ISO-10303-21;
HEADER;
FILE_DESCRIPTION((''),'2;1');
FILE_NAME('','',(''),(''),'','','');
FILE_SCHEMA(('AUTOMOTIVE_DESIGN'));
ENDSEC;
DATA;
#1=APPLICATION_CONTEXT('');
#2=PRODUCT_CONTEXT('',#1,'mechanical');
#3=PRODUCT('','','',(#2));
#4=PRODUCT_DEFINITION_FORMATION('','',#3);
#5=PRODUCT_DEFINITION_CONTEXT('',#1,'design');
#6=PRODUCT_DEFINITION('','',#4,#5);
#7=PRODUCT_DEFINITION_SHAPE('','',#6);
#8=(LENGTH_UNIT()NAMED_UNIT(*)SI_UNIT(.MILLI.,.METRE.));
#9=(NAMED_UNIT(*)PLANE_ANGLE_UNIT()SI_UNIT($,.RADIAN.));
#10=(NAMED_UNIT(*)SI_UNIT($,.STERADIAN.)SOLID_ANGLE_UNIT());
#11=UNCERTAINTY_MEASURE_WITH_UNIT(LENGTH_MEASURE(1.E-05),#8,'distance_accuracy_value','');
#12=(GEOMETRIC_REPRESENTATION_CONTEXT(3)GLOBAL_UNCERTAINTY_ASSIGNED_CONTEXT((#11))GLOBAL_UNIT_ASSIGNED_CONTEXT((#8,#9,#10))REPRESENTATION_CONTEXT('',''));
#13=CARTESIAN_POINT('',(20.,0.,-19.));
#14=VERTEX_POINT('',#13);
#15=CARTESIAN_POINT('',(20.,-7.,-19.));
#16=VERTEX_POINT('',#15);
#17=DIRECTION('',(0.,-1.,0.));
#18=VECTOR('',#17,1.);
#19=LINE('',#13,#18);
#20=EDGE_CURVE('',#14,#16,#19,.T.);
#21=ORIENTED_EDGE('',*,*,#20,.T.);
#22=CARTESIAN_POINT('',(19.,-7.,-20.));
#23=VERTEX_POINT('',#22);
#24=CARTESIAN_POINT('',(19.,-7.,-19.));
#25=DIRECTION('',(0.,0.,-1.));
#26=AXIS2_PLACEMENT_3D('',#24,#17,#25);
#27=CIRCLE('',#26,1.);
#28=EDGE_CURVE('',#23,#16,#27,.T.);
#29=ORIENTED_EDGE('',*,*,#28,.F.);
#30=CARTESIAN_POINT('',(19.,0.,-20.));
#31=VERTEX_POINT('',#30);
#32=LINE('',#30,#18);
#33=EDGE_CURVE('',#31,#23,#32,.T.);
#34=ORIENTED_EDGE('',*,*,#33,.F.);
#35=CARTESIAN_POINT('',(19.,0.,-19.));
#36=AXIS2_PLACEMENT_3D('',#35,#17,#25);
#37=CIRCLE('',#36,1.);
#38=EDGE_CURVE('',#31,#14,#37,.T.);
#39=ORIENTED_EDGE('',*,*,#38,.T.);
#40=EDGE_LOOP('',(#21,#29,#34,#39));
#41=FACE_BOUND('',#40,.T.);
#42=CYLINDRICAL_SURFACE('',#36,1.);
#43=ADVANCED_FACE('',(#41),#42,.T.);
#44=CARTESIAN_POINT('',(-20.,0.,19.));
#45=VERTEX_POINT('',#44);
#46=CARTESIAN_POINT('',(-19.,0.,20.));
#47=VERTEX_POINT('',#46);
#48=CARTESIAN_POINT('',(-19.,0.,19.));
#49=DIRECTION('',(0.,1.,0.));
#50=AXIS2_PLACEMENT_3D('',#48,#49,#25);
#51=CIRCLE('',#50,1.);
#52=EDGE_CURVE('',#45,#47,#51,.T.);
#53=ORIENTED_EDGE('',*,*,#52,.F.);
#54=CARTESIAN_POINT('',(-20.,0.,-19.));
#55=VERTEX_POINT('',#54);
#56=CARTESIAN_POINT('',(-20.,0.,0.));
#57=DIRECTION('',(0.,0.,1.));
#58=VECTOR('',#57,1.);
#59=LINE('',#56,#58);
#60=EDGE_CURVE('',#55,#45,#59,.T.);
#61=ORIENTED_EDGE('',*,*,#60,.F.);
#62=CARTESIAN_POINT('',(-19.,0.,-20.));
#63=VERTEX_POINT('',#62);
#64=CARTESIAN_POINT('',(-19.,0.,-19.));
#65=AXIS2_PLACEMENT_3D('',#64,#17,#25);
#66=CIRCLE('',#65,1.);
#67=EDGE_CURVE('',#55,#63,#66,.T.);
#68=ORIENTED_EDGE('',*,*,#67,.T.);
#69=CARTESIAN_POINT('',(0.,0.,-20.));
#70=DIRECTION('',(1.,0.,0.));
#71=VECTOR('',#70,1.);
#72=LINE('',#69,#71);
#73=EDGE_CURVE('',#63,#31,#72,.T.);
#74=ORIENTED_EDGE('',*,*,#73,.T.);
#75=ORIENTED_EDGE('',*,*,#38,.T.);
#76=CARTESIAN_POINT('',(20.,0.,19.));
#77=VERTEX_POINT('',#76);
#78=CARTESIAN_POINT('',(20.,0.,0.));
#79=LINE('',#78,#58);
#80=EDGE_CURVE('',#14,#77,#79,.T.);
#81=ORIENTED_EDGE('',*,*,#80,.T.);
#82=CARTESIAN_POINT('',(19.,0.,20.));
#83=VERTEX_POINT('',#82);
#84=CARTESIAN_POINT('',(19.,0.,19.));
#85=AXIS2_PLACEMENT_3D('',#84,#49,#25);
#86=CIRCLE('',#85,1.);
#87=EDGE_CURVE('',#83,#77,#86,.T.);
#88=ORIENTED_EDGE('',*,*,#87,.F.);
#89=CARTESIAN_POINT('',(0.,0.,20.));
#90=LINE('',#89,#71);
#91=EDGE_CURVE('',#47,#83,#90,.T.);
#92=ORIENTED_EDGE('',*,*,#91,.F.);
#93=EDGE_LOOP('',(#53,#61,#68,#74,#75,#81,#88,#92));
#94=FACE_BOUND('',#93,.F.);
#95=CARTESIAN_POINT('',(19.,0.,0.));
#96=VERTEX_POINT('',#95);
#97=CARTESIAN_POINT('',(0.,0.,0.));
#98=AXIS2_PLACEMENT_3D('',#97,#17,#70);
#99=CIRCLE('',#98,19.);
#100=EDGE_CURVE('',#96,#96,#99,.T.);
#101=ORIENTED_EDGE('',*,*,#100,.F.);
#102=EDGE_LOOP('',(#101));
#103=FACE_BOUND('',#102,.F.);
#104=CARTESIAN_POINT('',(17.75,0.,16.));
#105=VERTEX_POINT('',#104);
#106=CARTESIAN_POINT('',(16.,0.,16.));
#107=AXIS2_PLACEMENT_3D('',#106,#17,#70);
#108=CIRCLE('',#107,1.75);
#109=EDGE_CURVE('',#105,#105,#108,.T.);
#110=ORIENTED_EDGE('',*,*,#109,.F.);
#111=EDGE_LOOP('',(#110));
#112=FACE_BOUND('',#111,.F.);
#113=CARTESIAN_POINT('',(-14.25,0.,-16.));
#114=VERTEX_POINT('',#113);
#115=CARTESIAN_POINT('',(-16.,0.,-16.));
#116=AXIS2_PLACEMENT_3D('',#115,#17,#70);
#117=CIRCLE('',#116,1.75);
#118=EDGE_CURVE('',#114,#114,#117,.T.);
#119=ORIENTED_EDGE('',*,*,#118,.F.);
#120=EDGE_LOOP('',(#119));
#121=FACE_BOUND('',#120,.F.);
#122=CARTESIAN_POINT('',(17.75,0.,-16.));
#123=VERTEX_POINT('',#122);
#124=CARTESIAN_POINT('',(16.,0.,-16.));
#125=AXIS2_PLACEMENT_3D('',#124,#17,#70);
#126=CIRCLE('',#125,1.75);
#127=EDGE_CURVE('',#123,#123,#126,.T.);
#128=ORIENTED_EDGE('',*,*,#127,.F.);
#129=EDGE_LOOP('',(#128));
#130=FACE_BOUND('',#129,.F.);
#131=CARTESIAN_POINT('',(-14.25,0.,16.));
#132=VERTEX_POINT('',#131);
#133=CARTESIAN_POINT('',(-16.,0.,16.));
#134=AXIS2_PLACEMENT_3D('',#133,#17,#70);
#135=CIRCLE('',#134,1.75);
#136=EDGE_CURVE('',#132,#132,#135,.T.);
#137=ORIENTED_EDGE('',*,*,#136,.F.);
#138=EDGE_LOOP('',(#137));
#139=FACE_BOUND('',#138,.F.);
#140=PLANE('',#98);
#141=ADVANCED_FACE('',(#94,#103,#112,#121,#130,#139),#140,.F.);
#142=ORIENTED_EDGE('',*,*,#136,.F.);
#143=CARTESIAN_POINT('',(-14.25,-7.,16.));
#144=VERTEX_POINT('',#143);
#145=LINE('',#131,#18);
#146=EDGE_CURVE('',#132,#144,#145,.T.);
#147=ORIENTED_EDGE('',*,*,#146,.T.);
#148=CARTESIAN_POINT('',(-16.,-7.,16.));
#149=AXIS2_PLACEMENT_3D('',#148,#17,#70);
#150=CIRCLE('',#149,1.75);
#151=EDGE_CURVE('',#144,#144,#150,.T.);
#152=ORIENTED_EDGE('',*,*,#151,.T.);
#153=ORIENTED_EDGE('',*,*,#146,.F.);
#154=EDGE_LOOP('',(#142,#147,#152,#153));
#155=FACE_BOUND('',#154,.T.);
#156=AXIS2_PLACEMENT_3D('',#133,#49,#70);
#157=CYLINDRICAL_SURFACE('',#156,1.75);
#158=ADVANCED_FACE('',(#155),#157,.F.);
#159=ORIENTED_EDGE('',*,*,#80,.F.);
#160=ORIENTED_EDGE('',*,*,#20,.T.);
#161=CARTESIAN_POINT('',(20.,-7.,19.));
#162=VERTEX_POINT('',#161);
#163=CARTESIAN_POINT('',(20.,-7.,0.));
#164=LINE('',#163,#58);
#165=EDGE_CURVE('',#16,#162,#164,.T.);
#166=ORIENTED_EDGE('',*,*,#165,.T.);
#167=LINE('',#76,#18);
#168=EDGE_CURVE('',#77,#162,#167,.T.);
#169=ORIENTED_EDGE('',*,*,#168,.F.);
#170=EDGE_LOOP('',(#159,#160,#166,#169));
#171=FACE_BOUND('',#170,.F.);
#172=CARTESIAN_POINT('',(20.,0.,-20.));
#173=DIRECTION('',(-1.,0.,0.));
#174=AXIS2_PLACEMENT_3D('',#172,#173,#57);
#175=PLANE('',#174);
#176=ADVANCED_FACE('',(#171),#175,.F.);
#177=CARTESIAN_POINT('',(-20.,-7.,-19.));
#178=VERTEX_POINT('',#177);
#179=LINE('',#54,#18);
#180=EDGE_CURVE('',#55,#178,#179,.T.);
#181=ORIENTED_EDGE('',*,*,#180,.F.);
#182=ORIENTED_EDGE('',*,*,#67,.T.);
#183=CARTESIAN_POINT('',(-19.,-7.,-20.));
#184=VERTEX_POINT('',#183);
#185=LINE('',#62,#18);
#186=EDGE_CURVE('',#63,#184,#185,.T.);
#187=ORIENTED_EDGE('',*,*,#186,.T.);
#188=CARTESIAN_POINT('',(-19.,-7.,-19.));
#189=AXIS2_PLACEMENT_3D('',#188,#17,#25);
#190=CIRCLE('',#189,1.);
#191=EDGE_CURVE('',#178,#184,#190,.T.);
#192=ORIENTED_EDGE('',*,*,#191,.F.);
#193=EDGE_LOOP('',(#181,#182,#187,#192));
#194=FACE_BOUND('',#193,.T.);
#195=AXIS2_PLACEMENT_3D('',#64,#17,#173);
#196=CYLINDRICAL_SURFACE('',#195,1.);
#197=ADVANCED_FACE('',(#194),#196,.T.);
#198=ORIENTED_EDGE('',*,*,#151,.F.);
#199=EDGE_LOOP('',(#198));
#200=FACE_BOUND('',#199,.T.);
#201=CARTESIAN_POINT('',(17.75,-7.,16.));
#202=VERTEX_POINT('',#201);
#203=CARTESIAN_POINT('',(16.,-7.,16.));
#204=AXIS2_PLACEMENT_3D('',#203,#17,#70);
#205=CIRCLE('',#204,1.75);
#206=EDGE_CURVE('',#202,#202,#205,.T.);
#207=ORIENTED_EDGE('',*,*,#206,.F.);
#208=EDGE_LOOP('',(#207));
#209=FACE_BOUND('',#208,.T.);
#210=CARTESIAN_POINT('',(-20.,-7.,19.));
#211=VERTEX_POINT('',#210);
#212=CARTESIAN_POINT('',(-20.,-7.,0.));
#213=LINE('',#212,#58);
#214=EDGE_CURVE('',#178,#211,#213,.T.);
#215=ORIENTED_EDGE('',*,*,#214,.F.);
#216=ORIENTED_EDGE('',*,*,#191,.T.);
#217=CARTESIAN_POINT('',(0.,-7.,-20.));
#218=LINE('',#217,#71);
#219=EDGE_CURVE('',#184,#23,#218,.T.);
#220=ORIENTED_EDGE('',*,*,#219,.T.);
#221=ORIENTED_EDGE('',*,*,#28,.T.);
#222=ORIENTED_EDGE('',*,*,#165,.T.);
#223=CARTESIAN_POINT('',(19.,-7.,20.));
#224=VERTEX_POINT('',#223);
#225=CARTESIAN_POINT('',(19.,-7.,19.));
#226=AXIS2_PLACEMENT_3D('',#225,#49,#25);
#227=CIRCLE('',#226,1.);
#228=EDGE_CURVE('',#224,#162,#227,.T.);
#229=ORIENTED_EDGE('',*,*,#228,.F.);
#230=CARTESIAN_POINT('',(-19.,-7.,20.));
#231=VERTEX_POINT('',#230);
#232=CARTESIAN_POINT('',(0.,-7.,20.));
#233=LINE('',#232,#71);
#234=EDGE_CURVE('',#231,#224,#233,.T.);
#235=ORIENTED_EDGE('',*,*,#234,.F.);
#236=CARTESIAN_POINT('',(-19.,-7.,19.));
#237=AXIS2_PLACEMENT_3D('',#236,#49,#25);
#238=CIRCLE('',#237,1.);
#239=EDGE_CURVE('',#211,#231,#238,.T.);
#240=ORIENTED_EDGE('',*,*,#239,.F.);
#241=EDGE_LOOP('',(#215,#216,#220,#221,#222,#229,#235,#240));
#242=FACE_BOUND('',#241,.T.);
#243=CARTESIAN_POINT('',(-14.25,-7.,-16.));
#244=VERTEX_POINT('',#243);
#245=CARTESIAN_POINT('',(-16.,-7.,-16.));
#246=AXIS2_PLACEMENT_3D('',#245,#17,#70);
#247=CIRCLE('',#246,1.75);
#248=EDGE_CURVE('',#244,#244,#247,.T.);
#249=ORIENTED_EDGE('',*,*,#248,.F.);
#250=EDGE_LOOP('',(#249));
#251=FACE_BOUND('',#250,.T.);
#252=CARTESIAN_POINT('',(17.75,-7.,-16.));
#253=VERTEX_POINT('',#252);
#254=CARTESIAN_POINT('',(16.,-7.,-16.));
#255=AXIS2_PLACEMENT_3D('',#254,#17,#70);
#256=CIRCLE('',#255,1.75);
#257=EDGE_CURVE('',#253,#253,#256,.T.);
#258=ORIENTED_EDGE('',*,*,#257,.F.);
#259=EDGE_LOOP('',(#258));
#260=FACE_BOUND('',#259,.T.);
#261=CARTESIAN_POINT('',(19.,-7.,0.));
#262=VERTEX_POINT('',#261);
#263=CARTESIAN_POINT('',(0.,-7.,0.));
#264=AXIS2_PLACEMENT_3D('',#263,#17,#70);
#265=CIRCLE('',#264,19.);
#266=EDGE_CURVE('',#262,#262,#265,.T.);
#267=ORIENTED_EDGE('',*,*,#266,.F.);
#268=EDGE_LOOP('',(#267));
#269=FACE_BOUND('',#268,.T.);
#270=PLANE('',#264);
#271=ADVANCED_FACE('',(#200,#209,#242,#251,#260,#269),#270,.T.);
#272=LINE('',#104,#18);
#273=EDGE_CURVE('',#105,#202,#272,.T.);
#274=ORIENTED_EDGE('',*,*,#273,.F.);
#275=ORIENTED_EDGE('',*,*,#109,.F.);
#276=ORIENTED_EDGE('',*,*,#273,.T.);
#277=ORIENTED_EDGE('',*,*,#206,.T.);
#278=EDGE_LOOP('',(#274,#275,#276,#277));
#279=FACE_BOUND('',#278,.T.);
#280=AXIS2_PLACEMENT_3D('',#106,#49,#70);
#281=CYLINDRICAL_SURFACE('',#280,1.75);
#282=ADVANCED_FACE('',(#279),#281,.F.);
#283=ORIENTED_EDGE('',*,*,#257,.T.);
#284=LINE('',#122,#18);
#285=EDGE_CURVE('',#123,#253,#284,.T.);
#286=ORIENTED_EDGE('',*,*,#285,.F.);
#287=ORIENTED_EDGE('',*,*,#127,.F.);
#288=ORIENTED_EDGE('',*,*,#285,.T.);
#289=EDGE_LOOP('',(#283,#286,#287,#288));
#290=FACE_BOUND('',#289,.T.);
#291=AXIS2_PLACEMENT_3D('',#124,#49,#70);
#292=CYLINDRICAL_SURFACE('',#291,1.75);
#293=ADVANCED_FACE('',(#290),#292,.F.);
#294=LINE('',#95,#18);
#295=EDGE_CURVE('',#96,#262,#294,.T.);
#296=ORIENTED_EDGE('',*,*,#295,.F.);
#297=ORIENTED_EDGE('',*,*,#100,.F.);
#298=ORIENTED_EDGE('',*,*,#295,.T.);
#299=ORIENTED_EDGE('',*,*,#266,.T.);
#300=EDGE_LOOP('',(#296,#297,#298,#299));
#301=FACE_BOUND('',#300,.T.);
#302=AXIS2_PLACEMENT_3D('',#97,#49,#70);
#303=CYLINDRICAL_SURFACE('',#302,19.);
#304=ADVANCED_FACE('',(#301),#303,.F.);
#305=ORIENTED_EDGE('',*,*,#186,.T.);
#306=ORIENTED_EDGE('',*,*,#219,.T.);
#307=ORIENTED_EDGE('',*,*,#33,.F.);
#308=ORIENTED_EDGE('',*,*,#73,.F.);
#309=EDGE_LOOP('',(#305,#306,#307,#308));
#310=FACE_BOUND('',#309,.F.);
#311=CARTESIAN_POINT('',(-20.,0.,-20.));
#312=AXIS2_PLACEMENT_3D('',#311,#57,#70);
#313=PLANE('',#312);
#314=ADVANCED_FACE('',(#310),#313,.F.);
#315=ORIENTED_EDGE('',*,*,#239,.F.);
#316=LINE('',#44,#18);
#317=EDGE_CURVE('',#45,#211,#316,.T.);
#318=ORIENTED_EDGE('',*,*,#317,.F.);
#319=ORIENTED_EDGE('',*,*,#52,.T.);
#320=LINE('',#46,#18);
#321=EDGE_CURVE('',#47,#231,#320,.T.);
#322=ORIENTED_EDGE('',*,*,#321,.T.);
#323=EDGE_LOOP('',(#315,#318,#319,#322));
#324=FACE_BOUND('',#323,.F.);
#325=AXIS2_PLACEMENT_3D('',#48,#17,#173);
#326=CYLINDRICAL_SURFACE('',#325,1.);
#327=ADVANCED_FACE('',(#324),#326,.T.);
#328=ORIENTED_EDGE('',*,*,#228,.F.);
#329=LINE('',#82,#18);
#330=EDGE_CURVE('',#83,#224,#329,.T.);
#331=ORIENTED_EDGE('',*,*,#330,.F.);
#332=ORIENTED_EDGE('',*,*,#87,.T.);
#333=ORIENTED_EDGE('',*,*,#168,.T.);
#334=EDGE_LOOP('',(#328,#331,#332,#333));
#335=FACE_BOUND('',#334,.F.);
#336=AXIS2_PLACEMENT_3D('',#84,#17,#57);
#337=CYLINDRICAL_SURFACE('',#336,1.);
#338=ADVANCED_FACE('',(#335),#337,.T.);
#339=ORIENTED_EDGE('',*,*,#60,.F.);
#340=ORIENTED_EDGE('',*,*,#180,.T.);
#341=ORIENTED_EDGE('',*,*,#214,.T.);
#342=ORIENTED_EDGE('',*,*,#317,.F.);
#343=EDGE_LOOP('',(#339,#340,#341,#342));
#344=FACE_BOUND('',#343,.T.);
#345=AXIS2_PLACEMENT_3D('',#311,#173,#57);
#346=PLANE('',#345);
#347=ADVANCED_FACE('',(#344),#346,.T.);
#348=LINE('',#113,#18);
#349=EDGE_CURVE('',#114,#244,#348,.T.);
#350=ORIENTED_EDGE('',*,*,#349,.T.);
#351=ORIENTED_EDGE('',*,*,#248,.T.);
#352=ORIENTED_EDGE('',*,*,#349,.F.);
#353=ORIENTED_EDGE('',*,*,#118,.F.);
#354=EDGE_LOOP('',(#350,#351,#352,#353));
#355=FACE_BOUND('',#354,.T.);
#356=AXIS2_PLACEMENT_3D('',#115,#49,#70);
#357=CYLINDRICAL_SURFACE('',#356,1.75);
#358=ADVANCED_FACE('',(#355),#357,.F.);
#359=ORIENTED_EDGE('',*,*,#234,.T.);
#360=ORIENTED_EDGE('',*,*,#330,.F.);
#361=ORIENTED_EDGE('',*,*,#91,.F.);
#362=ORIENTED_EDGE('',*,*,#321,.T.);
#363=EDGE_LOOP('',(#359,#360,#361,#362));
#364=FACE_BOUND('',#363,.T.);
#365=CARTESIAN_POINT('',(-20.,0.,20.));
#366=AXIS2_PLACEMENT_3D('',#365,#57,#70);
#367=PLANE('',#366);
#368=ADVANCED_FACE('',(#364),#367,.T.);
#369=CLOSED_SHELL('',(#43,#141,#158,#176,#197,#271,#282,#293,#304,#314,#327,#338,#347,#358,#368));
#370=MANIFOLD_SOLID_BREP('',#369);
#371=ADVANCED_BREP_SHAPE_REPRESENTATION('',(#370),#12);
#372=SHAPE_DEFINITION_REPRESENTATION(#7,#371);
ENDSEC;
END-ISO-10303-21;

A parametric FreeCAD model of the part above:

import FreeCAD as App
import Part
import Sketcher
from FreeCAD import Vector
Q = App.Units.Quantity


def edges_at(feature, points):
    """Names of the edges that pass closest to the given points."""
    edges = feature.Shape.Edges
    near = lambda p: min(range(len(edges)), key=lambda i: edges[i].distToShape(Part.Vertex(*p))[0])
    return sorted({f"Edge{near(p) + 1}" for p in points})


def add_polygon(sketch, points):
    """Adds a closed chain of lines whose ends are joined by coincident constraints."""
    first, n = sketch.GeometryCount, len(points)
    for a, b in zip(points, points[1:] + points[:1]):
        sketch.addGeometry(Part.LineSegment(App.Vector(*a, 0), App.Vector(*b, 0)), False)
    for i in range(n):
        sketch.addConstraint(Sketcher.Constraint("Coincident", first + i, 2, first + (i + 1) % n, 1))

doc = App.newDocument("Part")
body = doc.addObject("PartDesign::Body", "Body")

# Sketch on XZ plane
sketch1 = body.newObject("Sketcher::SketchObject", "Sketch")
sketch1.AttachmentSupport = (doc.getObject("XZ_Plane"), [""])
sketch1.MapMode = "FlatFace"
add_polygon(sketch1, [(-20, 20), (-20, -20), (20, -20), (20, 20)])  # lines 0-3
sketch1.addGeometry(Part.Circle(Vector(-16, -16, 0), Vector(0, 0, 1), 1.8), False)  # 4
sketch1.addGeometry(Part.Circle(Vector(16, -16, 0), Vector(0, 0, 1), 1.8), False)  # 5
sketch1.addGeometry(Part.Circle(Vector(-16, 16, 0), Vector(0, 0, 1), 1.8), False)  # 6
sketch1.addGeometry(Part.Circle(Vector(0, 0, 0), Vector(0, 0, 1), 19), False)  # 7
sketch1.addGeometry(Part.Circle(Vector(16, 16, 0), Vector(0, 0, 1), 1.8), False)  # 8
sketch1.addConstraint(Sketcher.Constraint("Vertical", 0))
sketch1.addConstraint(Sketcher.Constraint("Horizontal", 1))
sketch1.addConstraint(Sketcher.Constraint("Vertical", 2))
sketch1.addConstraint(Sketcher.Constraint("Horizontal", 3))
sketch1.addConstraint(Sketcher.Constraint("Coincident", 7, 3, -1, 1))
sketch1.addConstraint(Sketcher.Constraint("Equal", 4, 5))
sketch1.addConstraint(Sketcher.Constraint("Equal", 5, 6))
sketch1.addConstraint(Sketcher.Constraint("Equal", 6, 8))
sketch1.addConstraint(Sketcher.Constraint("Symmetric", 5, 3, 6, 3, -1, 1))
sketch1.addConstraint(Sketcher.Constraint("Symmetric", 4, 3, 8, 3, -1, 1))
sketch1.addConstraint(Sketcher.Constraint("Symmetric", 0, 2, 2, 2, -1, 1))
sketch1.addConstraint(Sketcher.Constraint("Symmetric", 4, 3, 5, 3, -2))
sketch1.addConstraint(Sketcher.Constraint("Equal", 3, 0))
sketch1.addConstraint(Sketcher.Constraint("Diameter", 7, Q("38 mm")))
sketch1.addConstraint(Sketcher.Constraint("Diameter", 4, Q("3.5 mm")))
sketch1.addConstraint(Sketcher.Constraint("DistanceX", 1, 1, 1, 2, Q("40 mm")))
sketch1.addConstraint(Sketcher.Constraint("DistanceX", 4, 3, -1, 1, Q("16 mm")))
sketch1.addConstraint(Sketcher.Constraint("DistanceY", 4, 3, -1, 1, Q("16 mm")))
pad1 = body.newObject("PartDesign::Pad", "Pad")
pad1.Profile = sketch1
pad1.Length = 7
doc.recompute()

fillet = body.newObject("PartDesign::Fillet", "Fillet")
fillet.Base = (pad1, edges_at(pad1, [
    (20, -3.5, -20),
    (-20, -3.5, -20),
    (20, -3.5, 20),
    (-20, -3.5, 20),
]))
fillet.Radius = 1

doc.recompute()
